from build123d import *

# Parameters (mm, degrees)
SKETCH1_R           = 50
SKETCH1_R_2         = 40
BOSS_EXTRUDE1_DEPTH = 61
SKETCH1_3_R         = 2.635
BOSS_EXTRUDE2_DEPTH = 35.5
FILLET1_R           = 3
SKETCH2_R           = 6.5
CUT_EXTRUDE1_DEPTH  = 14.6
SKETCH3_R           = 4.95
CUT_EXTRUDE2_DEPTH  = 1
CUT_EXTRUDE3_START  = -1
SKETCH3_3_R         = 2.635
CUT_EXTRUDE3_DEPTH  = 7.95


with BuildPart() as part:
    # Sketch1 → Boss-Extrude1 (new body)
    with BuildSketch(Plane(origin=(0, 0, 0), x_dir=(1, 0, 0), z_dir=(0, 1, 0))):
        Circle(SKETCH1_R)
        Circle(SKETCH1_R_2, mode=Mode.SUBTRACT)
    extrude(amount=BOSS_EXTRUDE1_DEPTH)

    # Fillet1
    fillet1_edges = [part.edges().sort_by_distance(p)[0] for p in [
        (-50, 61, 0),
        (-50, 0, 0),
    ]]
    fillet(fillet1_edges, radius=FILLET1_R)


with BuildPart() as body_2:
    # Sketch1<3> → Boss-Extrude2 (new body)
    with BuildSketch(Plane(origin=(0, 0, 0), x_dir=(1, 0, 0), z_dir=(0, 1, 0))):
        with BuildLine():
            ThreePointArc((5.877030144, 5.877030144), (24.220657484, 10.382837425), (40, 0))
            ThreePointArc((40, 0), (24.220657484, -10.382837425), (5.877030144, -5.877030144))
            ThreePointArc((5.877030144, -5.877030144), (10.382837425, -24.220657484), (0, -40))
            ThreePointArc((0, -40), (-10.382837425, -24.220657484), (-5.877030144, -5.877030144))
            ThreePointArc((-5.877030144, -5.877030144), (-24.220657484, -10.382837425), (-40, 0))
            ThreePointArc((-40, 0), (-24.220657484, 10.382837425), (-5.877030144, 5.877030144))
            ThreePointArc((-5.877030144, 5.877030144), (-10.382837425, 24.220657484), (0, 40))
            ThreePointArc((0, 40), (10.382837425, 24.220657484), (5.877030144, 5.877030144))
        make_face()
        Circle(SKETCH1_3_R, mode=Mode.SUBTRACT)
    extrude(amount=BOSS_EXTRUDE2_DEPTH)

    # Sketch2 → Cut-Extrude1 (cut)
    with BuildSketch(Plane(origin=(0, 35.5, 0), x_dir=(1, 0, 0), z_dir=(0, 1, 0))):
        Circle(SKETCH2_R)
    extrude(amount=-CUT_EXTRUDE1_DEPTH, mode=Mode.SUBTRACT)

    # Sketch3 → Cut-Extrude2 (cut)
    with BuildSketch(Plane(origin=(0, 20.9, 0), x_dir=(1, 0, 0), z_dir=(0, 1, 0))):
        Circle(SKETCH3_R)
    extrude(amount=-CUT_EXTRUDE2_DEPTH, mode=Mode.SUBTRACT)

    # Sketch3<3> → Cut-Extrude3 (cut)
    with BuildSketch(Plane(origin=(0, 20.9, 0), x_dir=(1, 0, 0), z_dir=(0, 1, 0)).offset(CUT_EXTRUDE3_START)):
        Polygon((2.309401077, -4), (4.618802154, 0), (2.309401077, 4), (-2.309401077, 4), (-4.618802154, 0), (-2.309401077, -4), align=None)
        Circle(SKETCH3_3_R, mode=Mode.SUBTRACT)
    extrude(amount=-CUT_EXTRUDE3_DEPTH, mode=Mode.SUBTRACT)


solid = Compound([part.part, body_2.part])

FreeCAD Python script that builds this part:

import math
import FreeCAD as App
import Part
import Sketcher
from FreeCAD import Vector
Q = App.Units.Quantity


def edges_at(feature, points):
    """Names of the edges that pass closest to the given points."""
    edges = feature.Shape.Edges
    near = lambda p: min(range(len(edges)), key=lambda i: edges[i].distToShape(Part.Vertex(*p))[0])
    return sorted({f"Edge{near(p) + 1}" for p in points})

doc = App.newDocument("Part")
params = doc.addObject("Spreadsheet::Sheet", "Params")
for row, (alias, value) in enumerate([
    ("sketch1_diameter", "100 mm"),
    ("sketch1_diameter2", "80 mm"),
    ("pad1_length", "61 mm"),
    ("fillet_radius", "3 mm"),
    ("sketch2_diameter", "5.27 mm"),
    ("pad2_length", "35.5 mm"),
    ("sketch3_diameter", "13 mm"),
    ("pocket1_length", "14.6 mm"),
    ("sketch4_diameter", "9.9 mm"),
    ("pocket2_length", "1 mm"),
    ("sketch5_diameter", "5.27 mm"),
    ("pocket3_length", "7.95 mm"),
], start=1):
    params.set(f"A{row}", alias)
    params.set(f"B{row}", "=" + value)
    params.setAlias(f"B{row}", alias)

body = doc.addObject("PartDesign::Body", "Body")

# Sketch on XZ plane
sketch1 = doc.addObject("Sketcher::SketchObject", "Sketch")
body.addObject(sketch1)
sketch1.AttachmentSupport = (doc.XZ_Plane, [""])
sketch1.MapMode = "FlatFace"
sketch1.addGeometry([
    Part.Circle(Vector(0, 0, 0), Vector(0, 0, 1), 50),
    Part.Circle(Vector(0, 0, 0), Vector(0, 0, 1), 40),
], False)
sketch1.addConstraint([
    Sketcher.Constraint("Coincident", 0, 3, -1, 1),
    Sketcher.Constraint("Coincident", 1, 3, -1, 1),
    Sketcher.Constraint("Diameter", 0, Q("100 mm")),
    Sketcher.Constraint("Diameter", 1, Q("80 mm")),
])
sketch1.setExpression("Constraints[2]", "Params.sketch1_diameter")
sketch1.setExpression("Constraints[3]", "Params.sketch1_diameter2")
pad1 = doc.addObject("PartDesign::Pad", "Pad")
body.addObject(pad1)
pad1.Profile = sketch1
pad1.setExpression("Length", "Params.pad1_length")
pad1.Reversed = True
doc.recompute()

fillet = doc.addObject("PartDesign::Fillet", "Fillet")
body.addObject(fillet)
fillet.Base = (pad1, edges_at(pad1, [(-50, 61, 0), (-50, 0, 0)]))
fillet.setExpression("Radius", "Params.fillet_radius")
body2 = doc.addObject("PartDesign::Body", "Body001")

# Sketch on XZ plane
sketch2 = doc.addObject("Sketcher::SketchObject", "Sketch001")
body2.addObject(sketch2)
sketch2.AttachmentSupport = (doc.getObject("XZ_Plane001"), [""])
sketch2.MapMode = "FlatFace"
sketch2.addGeometry([
    Part.ArcOfCircle(Part.Circle(Vector(20.2, 12.9, 0), Vector(0, 0, 1), 23.6), math.radians(-127), math.radians(-33)),  # 0
    Part.ArcOfCircle(Part.Circle(Vector(-12.9, -20.2, 0), Vector(0, 0, 1), 23.6), math.radians(-57), math.radians(37)),  # 1
    Part.ArcOfCircle(Part.Circle(Vector(12.9, -20.2, 0), Vector(0, 0, 1), 23.6), math.radians(143), math.radians(237)),  # 2
    Part.ArcOfCircle(Part.Circle(Vector(-20.2, 12.9, 0), Vector(0, 0, 1), 23.6), math.radians(-147), math.radians(-53)),  # 3
    Part.ArcOfCircle(Part.Circle(Vector(-20.2, -12.9, 0), Vector(0, 0, 1), 23.6), math.radians(53), math.radians(147)),  # 4
    Part.ArcOfCircle(Part.Circle(Vector(12.9, 20.2, 0), Vector(0, 0, 1), 23.6), math.radians(123), math.radians(217)),  # 5
    Part.ArcOfCircle(Part.Circle(Vector(-12.9, 20.2, 0), Vector(0, 0, 1), 23.6), math.radians(-37), math.radians(57)),  # 6
    Part.ArcOfCircle(Part.Circle(Vector(20.2, -12.9, 0), Vector(0, 0, 1), 23.6), math.radians(33), math.radians(127)),  # 7
    Part.Circle(Vector(0, 0, 0), Vector(0, 0, 1), 2.6),  # 8
], False)
sketch2.addConstraint([
    Sketcher.Constraint("Coincident", 0, 1, 1, 2),
    Sketcher.Constraint("Coincident", 1, 1, 2, 2),
    Sketcher.Constraint("Coincident", 2, 1, 3, 2),
    Sketcher.Constraint("Coincident", 3, 1, 4, 2),
    Sketcher.Constraint("Coincident", 4, 1, 5, 2),
    Sketcher.Constraint("Coincident", 5, 1, 6, 2),
    Sketcher.Constraint("Coincident", 6, 1, 7, 2),
    Sketcher.Constraint("Coincident", 7, 1, 0, 2),
    Sketcher.Constraint("Coincident", 8, 3, -1, 1),
    Sketcher.Constraint("Equal", 0, 1),
    Sketcher.Constraint("Equal", 1, 2),
    Sketcher.Constraint("Equal", 2, 3),
    Sketcher.Constraint("Equal", 3, 4),
    Sketcher.Constraint("Equal", 4, 5),
    Sketcher.Constraint("Equal", 5, 6),
    Sketcher.Constraint("Equal", 6, 7),
    Sketcher.Constraint("Symmetric", 0, 3, 4, 3, -1, 1),
    Sketcher.Constraint("Symmetric", 1, 3, 5, 3, -1, 1),
    Sketcher.Constraint("Symmetric", 2, 3, 6, 3, -1, 1),
    Sketcher.Constraint("Symmetric", 3, 3, 7, 3, -1, 1),
    Sketcher.Constraint("Symmetric", 1, 3, 2, 3, -2),
    Sketcher.Constraint("Symmetric", 0, 3, 3, 3, -2),
    Sketcher.Constraint("Diameter", 8, Q("5.27 mm")),
    Sketcher.Constraint("DistanceY", 1, 1, -1, 1, Q("40 mm")),
    Sketcher.Constraint("DistanceX", 3, 1, -1, 1, Q("40 mm")),
    Sketcher.Constraint("Radius", 0, Q("23.616255 mm")),
    Sketcher.Constraint("DistanceY", -1, 1, 0, 3, Q("12.890752 mm")),
    Sketcher.Constraint("DistanceX", 1, 3, -1, 1, Q("12.890752 mm")),
])
sketch2.setExpression("Constraints[22]", "Params.sketch2_diameter")
pad2 = doc.addObject("PartDesign::Pad", "Pad001")
body2.addObject(pad2)
pad2.Profile = sketch2
pad2.setExpression("Length", "Params.pad2_length")
pad2.Reversed = True

# Sketch on XZ plane
sketch3 = doc.addObject("Sketcher::SketchObject", "Sketch002")
body2.addObject(sketch3)
sketch3.AttachmentSupport = (doc.getObject("XZ_Plane001"), [""])
sketch3.MapMode = "FlatFace"
sketch3.AttachmentOffset = App.Placement(Vector(0, 0, -35.5), App.Rotation())
sketch3.addGeometry(Part.Circle(Vector(0, 0, 0), Vector(0, 0, 1), 6), False)
sketch3.addConstraint([
    Sketcher.Constraint("Coincident", 0, 3, -1, 1),
    Sketcher.Constraint("Diameter", 0, Q("13 mm")),
])
sketch3.setExpression("Constraints[1]", "Params.sketch3_diameter")
pocket1 = doc.addObject("PartDesign::Pocket", "Pocket")
body2.addObject(pocket1)
pocket1.Profile = sketch3
pocket1.setExpression("Length", "Params.pocket1_length")
pocket1.Reversed = True

# Sketch on XZ plane
sketch4 = doc.addObject("Sketcher::SketchObject", "Sketch003")
body2.addObject(sketch4)
sketch4.AttachmentSupport = (doc.getObject("XZ_Plane001"), [""])
sketch4.MapMode = "FlatFace"
sketch4.AttachmentOffset = App.Placement(Vector(0, 0, -20.9), App.Rotation())
sketch4.addGeometry(Part.Circle(Vector(0, 0, 0), Vector(0, 0, 1), 5), False)
sketch4.addConstraint([
    Sketcher.Constraint("Coincident", 0, 3, -1, 1),
    Sketcher.Constraint("Diameter", 0, Q("9.9 mm")),
])
sketch4.setExpression("Constraints[1]", "Params.sketch4_diameter")
pocket2 = doc.addObject("PartDesign::Pocket", "Pocket001")
body2.addObject(pocket2)
pocket2.Profile = sketch4
pocket2.setExpression("Length", "Params.pocket2_length")
pocket2.Reversed = True

# Sketch on XZ plane
sketch5 = doc.addObject("Sketcher::SketchObject", "Sketch004")
body2.addObject(sketch5)
sketch5.AttachmentSupport = (doc.getObject("XZ_Plane001"), [""])
sketch5.MapMode = "FlatFace"
sketch5.AttachmentOffset = App.Placement(Vector(0, 0, -19.9), App.Rotation())
sketch5.addGeometry([
    Part.LineSegment(Vector(2.3, 4, 0), Vector(4.6, 0, 0)),  # 0
    Part.LineSegment(Vector(4.6, 0, 0), Vector(2.3, -4, 0)),  # 1
    Part.LineSegment(Vector(2.3, -4, 0), Vector(-2.3, -4, 0)),  # 2
    Part.LineSegment(Vector(-2.3, -4, 0), Vector(-4.6, 0, 0)),  # 3
    Part.LineSegment(Vector(-4.6, 0, 0), Vector(-2.3, 4, 0)),  # 4
    Part.LineSegment(Vector(-2.3, 4, 0), Vector(2.3, 4, 0)),  # 5
    Part.Circle(Vector(0, 0, 0), Vector(0, 0, 1), 2.6),  # 6
], False)
sketch5.addConstraint([
    Sketcher.Constraint("Coincident", 0, 2, 1, 1),
    Sketcher.Constraint("Coincident", 1, 2, 2, 1),
    Sketcher.Constraint("Coincident", 2, 2, 3, 1),
    Sketcher.Constraint("Coincident", 3, 2, 4, 1),
    Sketcher.Constraint("Coincident", 4, 2, 5, 1),
    Sketcher.Constraint("Coincident", 5, 2, 0, 1),
    Sketcher.Constraint("Horizontal", 2),
    Sketcher.Constraint("Horizontal", 5),
    Sketcher.Constraint("Coincident", 6, 3, -1, 1),
    Sketcher.Constraint("Symmetric", 0, 2, 3, 2, -1, 1),
    Sketcher.Constraint("Symmetric", 1, 2, 4, 2, -1, 1),
    Sketcher.Constraint("PointOnObject", 0, 2, -1),
    Sketcher.Constraint("Parallel", 0, 3),
    Sketcher.Constraint("Vertical", 2, 2, 4, 2),
    Sketcher.Constraint("Diameter", 6, Q("5.27 mm")),
    Sketcher.Constraint("Angle", 0, Q("-60 deg")),
    Sketcher.Constraint("DistanceY", 1, 2, -1, 1, Q("4 mm")),
    Sketcher.Constraint("DistanceX", -1, 1, 1, 2, Q("2.309401 mm")),
])
sketch5.setExpression("Constraints[14]", "Params.sketch5_diameter")
pocket3 = doc.addObject("PartDesign::Pocket", "Pocket002")
body2.addObject(pocket3)
pocket3.Profile = sketch5
pocket3.setExpression("Length", "Params.pocket3_length")
pocket3.Reversed = True

doc.recompute()
